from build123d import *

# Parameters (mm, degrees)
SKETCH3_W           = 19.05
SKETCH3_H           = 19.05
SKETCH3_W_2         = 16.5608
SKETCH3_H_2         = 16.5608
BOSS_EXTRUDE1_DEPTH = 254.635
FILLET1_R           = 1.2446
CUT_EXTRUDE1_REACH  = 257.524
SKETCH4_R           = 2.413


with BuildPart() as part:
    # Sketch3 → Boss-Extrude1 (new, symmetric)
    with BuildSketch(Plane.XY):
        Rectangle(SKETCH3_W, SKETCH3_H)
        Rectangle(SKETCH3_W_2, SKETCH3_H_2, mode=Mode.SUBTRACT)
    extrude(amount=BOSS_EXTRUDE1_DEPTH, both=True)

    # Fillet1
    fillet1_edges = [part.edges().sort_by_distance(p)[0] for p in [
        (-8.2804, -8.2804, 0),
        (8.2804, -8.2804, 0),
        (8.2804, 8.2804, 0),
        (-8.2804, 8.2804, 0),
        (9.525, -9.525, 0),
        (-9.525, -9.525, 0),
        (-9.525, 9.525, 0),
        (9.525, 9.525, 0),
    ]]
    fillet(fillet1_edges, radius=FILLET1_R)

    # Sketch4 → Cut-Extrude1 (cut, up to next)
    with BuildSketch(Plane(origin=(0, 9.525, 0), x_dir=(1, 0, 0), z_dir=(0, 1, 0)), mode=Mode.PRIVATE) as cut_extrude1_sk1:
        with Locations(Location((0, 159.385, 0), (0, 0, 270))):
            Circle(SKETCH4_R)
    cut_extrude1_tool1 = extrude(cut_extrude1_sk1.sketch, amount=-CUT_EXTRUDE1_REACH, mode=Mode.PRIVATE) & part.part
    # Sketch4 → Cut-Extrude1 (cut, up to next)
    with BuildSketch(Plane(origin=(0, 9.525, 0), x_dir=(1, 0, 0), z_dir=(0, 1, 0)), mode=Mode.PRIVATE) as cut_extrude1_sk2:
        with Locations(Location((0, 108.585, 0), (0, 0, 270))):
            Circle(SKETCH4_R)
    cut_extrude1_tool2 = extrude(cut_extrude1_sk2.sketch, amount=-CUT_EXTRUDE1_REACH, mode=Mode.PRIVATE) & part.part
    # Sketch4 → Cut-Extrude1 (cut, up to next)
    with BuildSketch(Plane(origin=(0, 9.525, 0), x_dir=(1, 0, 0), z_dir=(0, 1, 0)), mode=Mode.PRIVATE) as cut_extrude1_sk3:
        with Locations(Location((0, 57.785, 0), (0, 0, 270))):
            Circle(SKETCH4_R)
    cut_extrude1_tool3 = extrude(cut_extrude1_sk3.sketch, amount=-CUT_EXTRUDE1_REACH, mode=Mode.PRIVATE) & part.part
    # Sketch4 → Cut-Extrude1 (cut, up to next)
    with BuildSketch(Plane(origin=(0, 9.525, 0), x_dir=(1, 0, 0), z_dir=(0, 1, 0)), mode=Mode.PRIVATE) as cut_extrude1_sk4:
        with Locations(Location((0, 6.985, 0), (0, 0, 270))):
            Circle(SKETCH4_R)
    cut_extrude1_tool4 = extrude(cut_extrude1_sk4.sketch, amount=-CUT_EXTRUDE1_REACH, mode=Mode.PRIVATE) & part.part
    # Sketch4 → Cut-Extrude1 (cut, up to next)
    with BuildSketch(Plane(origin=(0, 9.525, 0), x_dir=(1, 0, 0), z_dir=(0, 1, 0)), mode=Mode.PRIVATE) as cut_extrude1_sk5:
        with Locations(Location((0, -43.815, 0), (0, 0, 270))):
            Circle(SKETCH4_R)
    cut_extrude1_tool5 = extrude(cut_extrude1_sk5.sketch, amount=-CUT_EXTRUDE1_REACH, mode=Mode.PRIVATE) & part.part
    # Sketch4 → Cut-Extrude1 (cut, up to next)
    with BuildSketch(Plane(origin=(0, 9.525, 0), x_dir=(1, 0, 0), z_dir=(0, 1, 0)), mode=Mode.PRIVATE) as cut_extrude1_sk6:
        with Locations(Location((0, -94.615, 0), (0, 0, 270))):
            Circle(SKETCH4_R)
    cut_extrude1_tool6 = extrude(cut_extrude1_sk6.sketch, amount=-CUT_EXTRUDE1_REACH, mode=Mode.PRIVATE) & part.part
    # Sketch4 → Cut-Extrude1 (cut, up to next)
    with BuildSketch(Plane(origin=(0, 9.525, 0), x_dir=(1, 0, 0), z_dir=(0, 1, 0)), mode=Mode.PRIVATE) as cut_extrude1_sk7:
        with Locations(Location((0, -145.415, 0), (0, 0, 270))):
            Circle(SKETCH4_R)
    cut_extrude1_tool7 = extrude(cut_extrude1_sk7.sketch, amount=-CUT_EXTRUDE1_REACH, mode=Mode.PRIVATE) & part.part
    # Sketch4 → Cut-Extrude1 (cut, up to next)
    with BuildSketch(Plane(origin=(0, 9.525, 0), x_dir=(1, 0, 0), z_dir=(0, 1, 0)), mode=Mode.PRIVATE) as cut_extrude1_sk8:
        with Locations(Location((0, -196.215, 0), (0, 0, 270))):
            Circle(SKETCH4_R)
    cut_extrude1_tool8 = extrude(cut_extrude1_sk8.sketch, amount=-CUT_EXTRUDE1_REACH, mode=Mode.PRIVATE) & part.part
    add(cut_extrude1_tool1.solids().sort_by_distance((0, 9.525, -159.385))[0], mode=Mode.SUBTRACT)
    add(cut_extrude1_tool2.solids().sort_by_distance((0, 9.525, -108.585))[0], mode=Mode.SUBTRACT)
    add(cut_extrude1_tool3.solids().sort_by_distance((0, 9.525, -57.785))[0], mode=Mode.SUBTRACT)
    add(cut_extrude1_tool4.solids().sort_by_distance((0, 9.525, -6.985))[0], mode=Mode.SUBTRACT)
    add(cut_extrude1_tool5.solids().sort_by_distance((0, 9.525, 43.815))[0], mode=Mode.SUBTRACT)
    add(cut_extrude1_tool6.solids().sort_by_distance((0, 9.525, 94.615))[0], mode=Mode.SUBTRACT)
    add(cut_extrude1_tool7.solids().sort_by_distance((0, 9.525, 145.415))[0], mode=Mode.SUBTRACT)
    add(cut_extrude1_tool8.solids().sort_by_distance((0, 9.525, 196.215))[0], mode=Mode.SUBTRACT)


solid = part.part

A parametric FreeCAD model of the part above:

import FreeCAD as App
import Part
import Sketcher
Q = App.Units.Quantity


def edges_at(feature, points):
    """Names of the edges that pass closest to the given points."""
    edges = feature.Shape.Edges
    near = lambda p: min(range(len(edges)), key=lambda i: edges[i].distToShape(Part.Vertex(*p))[0])
    return sorted({f"Edge{near(p) + 1}" for p in points})

doc = App.newDocument("Part")
body = doc.addObject("PartDesign::Body", "Body")

# Sketch on XY plane
sketch1 = body.newObject("Sketcher::SketchObject", "Sketch")
sketch1.AttachmentSupport = (doc.getObject("XY_Plane"), [""])
sketch1.MapMode = "FlatFace"
sketch1.addGeometry(Part.LineSegment(App.Vector(-10, 10, 0), App.Vector(-10, -10, 0)), False)
sketch1.addGeometry(Part.LineSegment(App.Vector(-10, -10, 0), App.Vector(10, -10, 0)), False)
sketch1.addGeometry(Part.LineSegment(App.Vector(10, -10, 0), App.Vector(10, 10, 0)), False)
sketch1.addGeometry(Part.LineSegment(App.Vector(10, 10, 0), App.Vector(-10, 10, 0)), False)
sketch1.addGeometry(Part.LineSegment(App.Vector(8, -8, 0), App.Vector(-8, -8, 0)), False)
sketch1.addGeometry(Part.LineSegment(App.Vector(-8, -8, 0), App.Vector(-8, 8, 0)), False)
sketch1.addGeometry(Part.LineSegment(App.Vector(-8, 8, 0), App.Vector(8, 8, 0)), False)
sketch1.addGeometry(Part.LineSegment(App.Vector(8, 8, 0), App.Vector(8, -8, 0)), False)
sketch1.addConstraint(Sketcher.Constraint("Coincident", 0, 2, 1, 1))
sketch1.addConstraint(Sketcher.Constraint("Coincident", 1, 2, 2, 1))
sketch1.addConstraint(Sketcher.Constraint("Coincident", 2, 2, 3, 1))
sketch1.addConstraint(Sketcher.Constraint("Coincident", 3, 2, 0, 1))
sketch1.addConstraint(Sketcher.Constraint("Coincident", 4, 2, 5, 1))
sketch1.addConstraint(Sketcher.Constraint("Coincident", 5, 2, 6, 1))
sketch1.addConstraint(Sketcher.Constraint("Coincident", 6, 2, 7, 1))
sketch1.addConstraint(Sketcher.Constraint("Coincident", 7, 2, 4, 1))
sketch1.addConstraint(Sketcher.Constraint("Vertical", 0))
sketch1.addConstraint(Sketcher.Constraint("Horizontal", 1))
sketch1.addConstraint(Sketcher.Constraint("Vertical", 2))
sketch1.addConstraint(Sketcher.Constraint("Horizontal", 3))
sketch1.addConstraint(Sketcher.Constraint("Horizontal", 4))
sketch1.addConstraint(Sketcher.Constraint("Vertical", 5))
sketch1.addConstraint(Sketcher.Constraint("Horizontal", 6))
sketch1.addConstraint(Sketcher.Constraint("Vertical", 7))
sketch1.addConstraint(Sketcher.Constraint("Symmetric", 0, 2, 2, 2, -1, 1))
sketch1.addConstraint(Sketcher.Constraint("Symmetric", 4, 2, 6, 2, -1, 1))
sketch1.addConstraint(Sketcher.Constraint("Equal", 3, 0))
sketch1.addConstraint(Sketcher.Constraint("Equal", 6, 5))
sketch1.addConstraint(Sketcher.Constraint("DistanceX", 1, 1, 1, 2, Q("0.75 in")))
sketch1.addConstraint(Sketcher.Constraint("DistanceX", 4, 2, 4, 1, Q("0.652 in")))
pad1 = body.newObject("PartDesign::Pad", "Pad")
pad1.Profile = sketch1
pad1.Length = Q("20.05 in")
pad1.Midplane = True
doc.recompute()

fillet = body.newObject("PartDesign::Fillet", "Fillet")
fillet.Base = (pad1, edges_at(pad1, [
    (-8.28, -8.28, 0),
    (8.28, -8.28, 0),
    (8.28, 8.28, 0),
    (-8.28, 8.28, 0),
    (9.525, -9.525, 0),
    (-9.525, -9.525, 0),
    (-9.525, 9.525, 0),
    (9.525, 9.525, 0),
]))
fillet.Radius = Q("0.049 in")

# Sketch on XZ plane
sketch2 = body.newObject("Sketcher::SketchObject", "Sketch001")
sketch2.AttachmentSupport = (doc.getObject("XZ_Plane"), [""])
sketch2.MapMode = "FlatFace"
sketch2.AttachmentOffset = App.Placement(App.Vector(0, 0, -0.375 * 25.4), App.Rotation())
sketch2.addGeometry(Part.Circle(App.Vector(0, -159.4, 0), App.Vector(0, 0, 1), 2.4), False)
sketch2.addConstraint(Sketcher.Constraint("PointOnObject", 0, 3, -2))
sketch2.addConstraint(Sketcher.Constraint("Diameter", 0, Q("0.19 in")))
sketch2.addConstraint(Sketcher.Constraint("DistanceY", 0, 3, -1, 1, Q("6.275 in")))
pocket1 = body.newObject("PartDesign::Pocket", "Pocket")
pocket1.Profile = sketch2
pocket1.Type = "UpToFirst"
pocket1.Reversed = True

# Sketch on XZ plane
sketch3 = body.newObject("Sketcher::SketchObject", "Sketch002")
sketch3.AttachmentSupport = (doc.getObject("XZ_Plane"), [""])
sketch3.MapMode = "FlatFace"
sketch3.AttachmentOffset = App.Placement(App.Vector(0, 0, -0.375 * 25.4), App.Rotation())
sketch3.addGeometry(Part.Circle(App.Vector(0, -108.6, 0), App.Vector(0, 0, 1), 2.4), False)
sketch3.addConstraint(Sketcher.Constraint("PointOnObject", 0, 3, -2))
sketch3.addConstraint(Sketcher.Constraint("Diameter", 0, Q("0.19 in")))
sketch3.addConstraint(Sketcher.Constraint("DistanceY", 0, 3, -1, 1, Q("4.275 in")))
pocket2 = body.newObject("PartDesign::Pocket", "Pocket001")
pocket2.Profile = sketch3
pocket2.Type = "UpToFirst"
pocket2.Reversed = True

# Sketch on XZ plane
sketch4 = body.newObject("Sketcher::SketchObject", "Sketch003")
sketch4.AttachmentSupport = (doc.getObject("XZ_Plane"), [""])
sketch4.MapMode = "FlatFace"
sketch4.AttachmentOffset = App.Placement(App.Vector(0, 0, -0.375 * 25.4), App.Rotation())
sketch4.addGeometry(Part.Circle(App.Vector(0, -57.8, 0), App.Vector(0, 0, 1), 2.4), False)
sketch4.addConstraint(Sketcher.Constraint("PointOnObject", 0, 3, -2))
sketch4.addConstraint(Sketcher.Constraint("Diameter", 0, Q("0.19 in")))
sketch4.addConstraint(Sketcher.Constraint("DistanceY", 0, 3, -1, 1, Q("2.275 in")))
pocket3 = body.newObject("PartDesign::Pocket", "Pocket002")
pocket3.Profile = sketch4
pocket3.Type = "UpToFirst"
pocket3.Reversed = True

# Sketch on XZ plane
sketch5 = body.newObject("Sketcher::SketchObject", "Sketch004")
sketch5.AttachmentSupport = (doc.getObject("XZ_Plane"), [""])
sketch5.MapMode = "FlatFace"
sketch5.AttachmentOffset = App.Placement(App.Vector(0, 0, -0.375 * 25.4), App.Rotation())
sketch5.addGeometry(Part.Circle(App.Vector(0, -7, 0), App.Vector(0, 0, 1), 2.4), False)
sketch5.addConstraint(Sketcher.Constraint("PointOnObject", 0, 3, -2))
sketch5.addConstraint(Sketcher.Constraint("Diameter", 0, Q("0.19 in")))
sketch5.addConstraint(Sketcher.Constraint("DistanceY", 0, 3, -1, 1, Q("0.275 in")))
pocket4 = body.newObject("PartDesign::Pocket", "Pocket003")
pocket4.Profile = sketch5
pocket4.Type = "UpToFirst"
pocket4.Reversed = True

# Sketch on XZ plane
sketch6 = body.newObject("Sketcher::SketchObject", "Sketch005")
sketch6.AttachmentSupport = (doc.getObject("XZ_Plane"), [""])
sketch6.MapMode = "FlatFace"
sketch6.AttachmentOffset = App.Placement(App.Vector(0, 0, -0.375 * 25.4), App.Rotation())
sketch6.addGeometry(Part.Circle(App.Vector(0, 43.8, 0), App.Vector(0, 0, 1), 2.4), False)
sketch6.addConstraint(Sketcher.Constraint("PointOnObject", 0, 3, -2))
sketch6.addConstraint(Sketcher.Constraint("Diameter", 0, Q("0.19 in")))
sketch6.addConstraint(Sketcher.Constraint("DistanceY", -1, 1, 0, 3, Q("1.725 in")))
pocket5 = body.newObject("PartDesign::Pocket", "Pocket004")
pocket5.Profile = sketch6
pocket5.Type = "UpToFirst"
pocket5.Reversed = True

# Sketch on XZ plane
sketch7 = body.newObject("Sketcher::SketchObject", "Sketch006")
sketch7.AttachmentSupport = (doc.getObject("XZ_Plane"), [""])
sketch7.MapMode = "FlatFace"
sketch7.AttachmentOffset = App.Placement(App.Vector(0, 0, -0.375 * 25.4), App.Rotation())
sketch7.addGeometry(Part.Circle(App.Vector(0, 94.6, 0), App.Vector(0, 0, 1), 2.4), False)
sketch7.addConstraint(Sketcher.Constraint("PointOnObject", 0, 3, -2))
sketch7.addConstraint(Sketcher.Constraint("Diameter", 0, Q("0.19 in")))
sketch7.addConstraint(Sketcher.Constraint("DistanceY", -1, 1, 0, 3, Q("3.725 in")))
pocket6 = body.newObject("PartDesign::Pocket", "Pocket005")
pocket6.Profile = sketch7
pocket6.Type = "UpToFirst"
pocket6.Reversed = True

# Sketch on XZ plane
sketch8 = body.newObject("Sketcher::SketchObject", "Sketch007")
sketch8.AttachmentSupport = (doc.getObject("XZ_Plane"), [""])
sketch8.MapMode = "FlatFace"
sketch8.AttachmentOffset = App.Placement(App.Vector(0, 0, -0.375 * 25.4), App.Rotation())
sketch8.addGeometry(Part.Circle(App.Vector(0, 145.4, 0), App.Vector(0, 0, 1), 2.4), False)
sketch8.addConstraint(Sketcher.Constraint("PointOnObject", 0, 3, -2))
sketch8.addConstraint(Sketcher.Constraint("Diameter", 0, Q("0.19 in")))
sketch8.addConstraint(Sketcher.Constraint("DistanceY", -1, 1, 0, 3, Q("5.725 in")))
pocket7 = body.newObject("PartDesign::Pocket", "Pocket006")
pocket7.Profile = sketch8
pocket7.Type = "UpToFirst"
pocket7.Reversed = True

# Sketch on XZ plane
sketch9 = body.newObject("Sketcher::SketchObject", "Sketch008")
sketch9.AttachmentSupport = (doc.getObject("XZ_Plane"), [""])
sketch9.MapMode = "FlatFace"
sketch9.AttachmentOffset = App.Placement(App.Vector(0, 0, -0.375 * 25.4), App.Rotation())
sketch9.addGeometry(Part.Circle(App.Vector(0, 196.2, 0), App.Vector(0, 0, 1), 2.4), False)
sketch9.addConstraint(Sketcher.Constraint("PointOnObject", 0, 3, -2))
sketch9.addConstraint(Sketcher.Constraint("Diameter", 0, Q("0.19 in")))
sketch9.addConstraint(Sketcher.Constraint("DistanceY", -1, 1, 0, 3, Q("7.725 in")))
pocket8 = body.newObject("PartDesign::Pocket", "Pocket007")
pocket8.Profile = sketch9
pocket8.Type = "UpToFirst"
pocket8.Reversed = True

doc.recompute()
